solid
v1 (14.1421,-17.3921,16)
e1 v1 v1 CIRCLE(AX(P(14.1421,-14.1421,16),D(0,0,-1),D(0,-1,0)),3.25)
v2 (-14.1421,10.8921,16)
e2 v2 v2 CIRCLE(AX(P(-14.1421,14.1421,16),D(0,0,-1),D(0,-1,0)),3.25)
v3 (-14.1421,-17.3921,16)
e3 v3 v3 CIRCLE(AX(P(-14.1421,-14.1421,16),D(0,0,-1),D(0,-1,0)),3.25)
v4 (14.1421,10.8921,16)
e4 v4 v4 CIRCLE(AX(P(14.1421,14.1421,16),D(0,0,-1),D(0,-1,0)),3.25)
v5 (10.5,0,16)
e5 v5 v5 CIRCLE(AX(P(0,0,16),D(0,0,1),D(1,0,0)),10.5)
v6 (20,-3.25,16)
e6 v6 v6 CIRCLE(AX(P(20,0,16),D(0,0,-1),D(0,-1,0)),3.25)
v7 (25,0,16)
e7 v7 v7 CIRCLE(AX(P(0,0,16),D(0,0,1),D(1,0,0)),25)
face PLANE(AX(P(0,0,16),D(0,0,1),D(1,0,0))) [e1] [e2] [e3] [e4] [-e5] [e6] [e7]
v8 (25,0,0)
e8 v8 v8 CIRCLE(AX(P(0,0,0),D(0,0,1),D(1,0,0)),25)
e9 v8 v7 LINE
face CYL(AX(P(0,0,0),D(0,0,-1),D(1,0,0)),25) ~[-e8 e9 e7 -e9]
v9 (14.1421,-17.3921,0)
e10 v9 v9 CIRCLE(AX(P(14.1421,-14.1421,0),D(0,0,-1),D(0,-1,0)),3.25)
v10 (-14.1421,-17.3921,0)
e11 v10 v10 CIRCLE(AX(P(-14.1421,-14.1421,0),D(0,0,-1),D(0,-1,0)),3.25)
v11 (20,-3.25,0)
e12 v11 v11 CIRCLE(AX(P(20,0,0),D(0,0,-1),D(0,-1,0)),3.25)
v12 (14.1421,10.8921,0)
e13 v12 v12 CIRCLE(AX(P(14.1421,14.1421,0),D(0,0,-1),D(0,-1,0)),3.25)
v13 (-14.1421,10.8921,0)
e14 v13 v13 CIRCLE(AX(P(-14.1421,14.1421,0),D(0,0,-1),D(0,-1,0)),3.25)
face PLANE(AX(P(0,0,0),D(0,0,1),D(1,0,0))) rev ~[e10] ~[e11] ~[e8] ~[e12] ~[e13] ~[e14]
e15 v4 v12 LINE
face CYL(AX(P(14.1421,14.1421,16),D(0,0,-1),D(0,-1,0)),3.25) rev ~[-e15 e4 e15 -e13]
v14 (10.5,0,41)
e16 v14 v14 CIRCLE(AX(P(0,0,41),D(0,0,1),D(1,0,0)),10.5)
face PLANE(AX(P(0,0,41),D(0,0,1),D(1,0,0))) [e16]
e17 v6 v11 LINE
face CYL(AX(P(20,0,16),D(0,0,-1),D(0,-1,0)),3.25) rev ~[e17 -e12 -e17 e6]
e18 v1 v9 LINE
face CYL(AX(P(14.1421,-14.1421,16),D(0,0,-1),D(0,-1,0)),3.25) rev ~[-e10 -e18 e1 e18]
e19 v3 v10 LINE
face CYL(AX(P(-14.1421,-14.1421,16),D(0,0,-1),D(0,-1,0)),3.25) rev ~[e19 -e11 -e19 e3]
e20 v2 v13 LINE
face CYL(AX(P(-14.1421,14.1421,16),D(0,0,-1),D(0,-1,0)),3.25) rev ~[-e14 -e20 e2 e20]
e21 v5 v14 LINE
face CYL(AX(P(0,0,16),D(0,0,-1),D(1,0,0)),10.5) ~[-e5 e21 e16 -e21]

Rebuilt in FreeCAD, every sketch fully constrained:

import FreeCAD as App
import Part
import Sketcher

V = App.Vector
Q = App.Units.Quantity

doc = App.newDocument("Part")
body = doc.addObject("PartDesign::Body", "Body")

# Sketch on XY plane
sketch1 = doc.addObject("Sketcher::SketchObject", "Sketch")
body.addObject(sketch1)
sketch1.AttachmentSupport = (doc.XY_Plane, [""])
sketch1.MapMode = "FlatFace"
sketch1.addGeometry(Part.Circle(V(0, 0, 0), V(0, 0, 1), 25), False)
sketch1.addConstraint(Sketcher.Constraint("Coincident", 0, 3, -1, 1))
sketch1.addConstraint(Sketcher.Constraint("Diameter", 0, Q("50 mm")))
pad1 = doc.addObject("PartDesign::Pad", "Pad")
body.addObject(pad1)
pad1.Profile = sketch1
pad1.Length = 16

# Sketch on XY plane
sketch2 = doc.addObject("Sketcher::SketchObject", "Sketch001")
body.addObject(sketch2)
sketch2.AttachmentSupport = (doc.XY_Plane, [""])
sketch2.MapMode = "FlatFace"
sketch2.AttachmentOffset = App.Placement(V(0, 0, 16), App.Rotation())
sketch2.addGeometry(Part.Circle(V(-14.1, 14.1, 0), V(0, 0, 1), 3.2), False)
sketch2.addGeometry(Part.Circle(V(-14.1, -14.1, 0), V(0, 0, 1), 3.2), False)
sketch2.addGeometry(Part.Circle(V(14.1, -14.1, 0), V(0, 0, 1), 3.2), False)
sketch2.addGeometry(Part.Circle(V(14.1, 14.1, 0), V(0, 0, 1), 3.2), False)
sketch2.addConstraint(Sketcher.Constraint("Equal", 0, 1))
sketch2.addConstraint(Sketcher.Constraint("Equal", 1, 2))
sketch2.addConstraint(Sketcher.Constraint("Equal", 2, 3))
sketch2.addConstraint(Sketcher.Constraint("Symmetric", 0, 3, 2, 3, -1, 1))
sketch2.addConstraint(Sketcher.Constraint("Symmetric", 1, 3, 3, 3, -1, 1))
sketch2.addConstraint(Sketcher.Constraint("Symmetric", 1, 3, 2, 3, -2))
sketch2.addConstraint(Sketcher.Constraint("Diameter", 0, Q("6.5 mm")))
sketch2.addConstraint(Sketcher.Constraint("DistanceX", 0, 3, -1, 1, Q("14.142 mm")))
sketch2.addConstraint(Sketcher.Constraint("DistanceY", -1, 1, 0, 3, Q("14.142 mm")))
doc.recompute()
hole = doc.addObject("PartDesign::Hole", "Hole")
body.addObject(hole)
hole.Profile = sketch2
hole.ThreadType = "None"
hole.Diameter = 6.5
hole.DepthType = "ThroughAll"

# Sketch on XY plane
sketch3 = doc.addObject("Sketcher::SketchObject", "Sketch002")
body.addObject(sketch3)
sketch3.AttachmentSupport = (doc.XY_Plane, [""])
sketch3.MapMode = "FlatFace"
sketch3.AttachmentOffset = App.Placement(V(0, 0, 16), App.Rotation())
sketch3.addGeometry(Part.Circle(V(20, 0, 0), V(0, 0, 1), 3.2), False)
sketch3.addConstraint(Sketcher.Constraint("PointOnObject", 0, 3, -1))
sketch3.addConstraint(Sketcher.Constraint("Diameter", 0, Q("6.5 mm")))
sketch3.addConstraint(Sketcher.Constraint("DistanceX", -1, 1, 0, 3, Q("20 mm")))
doc.recompute()
hole2 = doc.addObject("PartDesign::Hole", "Hole001")
body.addObject(hole2)
hole2.Profile = sketch3
hole2.ThreadType = "None"
hole2.Diameter = 6.5
hole2.DepthType = "ThroughAll"

# Sketch on XY plane
sketch4 = doc.addObject("Sketcher::SketchObject", "Sketch003")
body.addObject(sketch4)
sketch4.AttachmentSupport = (doc.XY_Plane, [""])
sketch4.MapMode = "FlatFace"
sketch4.AttachmentOffset = App.Placement(V(0, 0, 16), App.Rotation())
sketch4.addGeometry(Part.Circle(V(0, 0, 0), V(0, 0, 1), 10), False)
sketch4.addConstraint(Sketcher.Constraint("Coincident", 0, 3, -1, 1))
sketch4.addConstraint(Sketcher.Constraint("Diameter", 0, Q("21 mm")))
pad2 = doc.addObject("PartDesign::Pad", "Pad001")
body.addObject(pad2)
pad2.Profile = sketch4
pad2.Length = 25

doc.recompute()
